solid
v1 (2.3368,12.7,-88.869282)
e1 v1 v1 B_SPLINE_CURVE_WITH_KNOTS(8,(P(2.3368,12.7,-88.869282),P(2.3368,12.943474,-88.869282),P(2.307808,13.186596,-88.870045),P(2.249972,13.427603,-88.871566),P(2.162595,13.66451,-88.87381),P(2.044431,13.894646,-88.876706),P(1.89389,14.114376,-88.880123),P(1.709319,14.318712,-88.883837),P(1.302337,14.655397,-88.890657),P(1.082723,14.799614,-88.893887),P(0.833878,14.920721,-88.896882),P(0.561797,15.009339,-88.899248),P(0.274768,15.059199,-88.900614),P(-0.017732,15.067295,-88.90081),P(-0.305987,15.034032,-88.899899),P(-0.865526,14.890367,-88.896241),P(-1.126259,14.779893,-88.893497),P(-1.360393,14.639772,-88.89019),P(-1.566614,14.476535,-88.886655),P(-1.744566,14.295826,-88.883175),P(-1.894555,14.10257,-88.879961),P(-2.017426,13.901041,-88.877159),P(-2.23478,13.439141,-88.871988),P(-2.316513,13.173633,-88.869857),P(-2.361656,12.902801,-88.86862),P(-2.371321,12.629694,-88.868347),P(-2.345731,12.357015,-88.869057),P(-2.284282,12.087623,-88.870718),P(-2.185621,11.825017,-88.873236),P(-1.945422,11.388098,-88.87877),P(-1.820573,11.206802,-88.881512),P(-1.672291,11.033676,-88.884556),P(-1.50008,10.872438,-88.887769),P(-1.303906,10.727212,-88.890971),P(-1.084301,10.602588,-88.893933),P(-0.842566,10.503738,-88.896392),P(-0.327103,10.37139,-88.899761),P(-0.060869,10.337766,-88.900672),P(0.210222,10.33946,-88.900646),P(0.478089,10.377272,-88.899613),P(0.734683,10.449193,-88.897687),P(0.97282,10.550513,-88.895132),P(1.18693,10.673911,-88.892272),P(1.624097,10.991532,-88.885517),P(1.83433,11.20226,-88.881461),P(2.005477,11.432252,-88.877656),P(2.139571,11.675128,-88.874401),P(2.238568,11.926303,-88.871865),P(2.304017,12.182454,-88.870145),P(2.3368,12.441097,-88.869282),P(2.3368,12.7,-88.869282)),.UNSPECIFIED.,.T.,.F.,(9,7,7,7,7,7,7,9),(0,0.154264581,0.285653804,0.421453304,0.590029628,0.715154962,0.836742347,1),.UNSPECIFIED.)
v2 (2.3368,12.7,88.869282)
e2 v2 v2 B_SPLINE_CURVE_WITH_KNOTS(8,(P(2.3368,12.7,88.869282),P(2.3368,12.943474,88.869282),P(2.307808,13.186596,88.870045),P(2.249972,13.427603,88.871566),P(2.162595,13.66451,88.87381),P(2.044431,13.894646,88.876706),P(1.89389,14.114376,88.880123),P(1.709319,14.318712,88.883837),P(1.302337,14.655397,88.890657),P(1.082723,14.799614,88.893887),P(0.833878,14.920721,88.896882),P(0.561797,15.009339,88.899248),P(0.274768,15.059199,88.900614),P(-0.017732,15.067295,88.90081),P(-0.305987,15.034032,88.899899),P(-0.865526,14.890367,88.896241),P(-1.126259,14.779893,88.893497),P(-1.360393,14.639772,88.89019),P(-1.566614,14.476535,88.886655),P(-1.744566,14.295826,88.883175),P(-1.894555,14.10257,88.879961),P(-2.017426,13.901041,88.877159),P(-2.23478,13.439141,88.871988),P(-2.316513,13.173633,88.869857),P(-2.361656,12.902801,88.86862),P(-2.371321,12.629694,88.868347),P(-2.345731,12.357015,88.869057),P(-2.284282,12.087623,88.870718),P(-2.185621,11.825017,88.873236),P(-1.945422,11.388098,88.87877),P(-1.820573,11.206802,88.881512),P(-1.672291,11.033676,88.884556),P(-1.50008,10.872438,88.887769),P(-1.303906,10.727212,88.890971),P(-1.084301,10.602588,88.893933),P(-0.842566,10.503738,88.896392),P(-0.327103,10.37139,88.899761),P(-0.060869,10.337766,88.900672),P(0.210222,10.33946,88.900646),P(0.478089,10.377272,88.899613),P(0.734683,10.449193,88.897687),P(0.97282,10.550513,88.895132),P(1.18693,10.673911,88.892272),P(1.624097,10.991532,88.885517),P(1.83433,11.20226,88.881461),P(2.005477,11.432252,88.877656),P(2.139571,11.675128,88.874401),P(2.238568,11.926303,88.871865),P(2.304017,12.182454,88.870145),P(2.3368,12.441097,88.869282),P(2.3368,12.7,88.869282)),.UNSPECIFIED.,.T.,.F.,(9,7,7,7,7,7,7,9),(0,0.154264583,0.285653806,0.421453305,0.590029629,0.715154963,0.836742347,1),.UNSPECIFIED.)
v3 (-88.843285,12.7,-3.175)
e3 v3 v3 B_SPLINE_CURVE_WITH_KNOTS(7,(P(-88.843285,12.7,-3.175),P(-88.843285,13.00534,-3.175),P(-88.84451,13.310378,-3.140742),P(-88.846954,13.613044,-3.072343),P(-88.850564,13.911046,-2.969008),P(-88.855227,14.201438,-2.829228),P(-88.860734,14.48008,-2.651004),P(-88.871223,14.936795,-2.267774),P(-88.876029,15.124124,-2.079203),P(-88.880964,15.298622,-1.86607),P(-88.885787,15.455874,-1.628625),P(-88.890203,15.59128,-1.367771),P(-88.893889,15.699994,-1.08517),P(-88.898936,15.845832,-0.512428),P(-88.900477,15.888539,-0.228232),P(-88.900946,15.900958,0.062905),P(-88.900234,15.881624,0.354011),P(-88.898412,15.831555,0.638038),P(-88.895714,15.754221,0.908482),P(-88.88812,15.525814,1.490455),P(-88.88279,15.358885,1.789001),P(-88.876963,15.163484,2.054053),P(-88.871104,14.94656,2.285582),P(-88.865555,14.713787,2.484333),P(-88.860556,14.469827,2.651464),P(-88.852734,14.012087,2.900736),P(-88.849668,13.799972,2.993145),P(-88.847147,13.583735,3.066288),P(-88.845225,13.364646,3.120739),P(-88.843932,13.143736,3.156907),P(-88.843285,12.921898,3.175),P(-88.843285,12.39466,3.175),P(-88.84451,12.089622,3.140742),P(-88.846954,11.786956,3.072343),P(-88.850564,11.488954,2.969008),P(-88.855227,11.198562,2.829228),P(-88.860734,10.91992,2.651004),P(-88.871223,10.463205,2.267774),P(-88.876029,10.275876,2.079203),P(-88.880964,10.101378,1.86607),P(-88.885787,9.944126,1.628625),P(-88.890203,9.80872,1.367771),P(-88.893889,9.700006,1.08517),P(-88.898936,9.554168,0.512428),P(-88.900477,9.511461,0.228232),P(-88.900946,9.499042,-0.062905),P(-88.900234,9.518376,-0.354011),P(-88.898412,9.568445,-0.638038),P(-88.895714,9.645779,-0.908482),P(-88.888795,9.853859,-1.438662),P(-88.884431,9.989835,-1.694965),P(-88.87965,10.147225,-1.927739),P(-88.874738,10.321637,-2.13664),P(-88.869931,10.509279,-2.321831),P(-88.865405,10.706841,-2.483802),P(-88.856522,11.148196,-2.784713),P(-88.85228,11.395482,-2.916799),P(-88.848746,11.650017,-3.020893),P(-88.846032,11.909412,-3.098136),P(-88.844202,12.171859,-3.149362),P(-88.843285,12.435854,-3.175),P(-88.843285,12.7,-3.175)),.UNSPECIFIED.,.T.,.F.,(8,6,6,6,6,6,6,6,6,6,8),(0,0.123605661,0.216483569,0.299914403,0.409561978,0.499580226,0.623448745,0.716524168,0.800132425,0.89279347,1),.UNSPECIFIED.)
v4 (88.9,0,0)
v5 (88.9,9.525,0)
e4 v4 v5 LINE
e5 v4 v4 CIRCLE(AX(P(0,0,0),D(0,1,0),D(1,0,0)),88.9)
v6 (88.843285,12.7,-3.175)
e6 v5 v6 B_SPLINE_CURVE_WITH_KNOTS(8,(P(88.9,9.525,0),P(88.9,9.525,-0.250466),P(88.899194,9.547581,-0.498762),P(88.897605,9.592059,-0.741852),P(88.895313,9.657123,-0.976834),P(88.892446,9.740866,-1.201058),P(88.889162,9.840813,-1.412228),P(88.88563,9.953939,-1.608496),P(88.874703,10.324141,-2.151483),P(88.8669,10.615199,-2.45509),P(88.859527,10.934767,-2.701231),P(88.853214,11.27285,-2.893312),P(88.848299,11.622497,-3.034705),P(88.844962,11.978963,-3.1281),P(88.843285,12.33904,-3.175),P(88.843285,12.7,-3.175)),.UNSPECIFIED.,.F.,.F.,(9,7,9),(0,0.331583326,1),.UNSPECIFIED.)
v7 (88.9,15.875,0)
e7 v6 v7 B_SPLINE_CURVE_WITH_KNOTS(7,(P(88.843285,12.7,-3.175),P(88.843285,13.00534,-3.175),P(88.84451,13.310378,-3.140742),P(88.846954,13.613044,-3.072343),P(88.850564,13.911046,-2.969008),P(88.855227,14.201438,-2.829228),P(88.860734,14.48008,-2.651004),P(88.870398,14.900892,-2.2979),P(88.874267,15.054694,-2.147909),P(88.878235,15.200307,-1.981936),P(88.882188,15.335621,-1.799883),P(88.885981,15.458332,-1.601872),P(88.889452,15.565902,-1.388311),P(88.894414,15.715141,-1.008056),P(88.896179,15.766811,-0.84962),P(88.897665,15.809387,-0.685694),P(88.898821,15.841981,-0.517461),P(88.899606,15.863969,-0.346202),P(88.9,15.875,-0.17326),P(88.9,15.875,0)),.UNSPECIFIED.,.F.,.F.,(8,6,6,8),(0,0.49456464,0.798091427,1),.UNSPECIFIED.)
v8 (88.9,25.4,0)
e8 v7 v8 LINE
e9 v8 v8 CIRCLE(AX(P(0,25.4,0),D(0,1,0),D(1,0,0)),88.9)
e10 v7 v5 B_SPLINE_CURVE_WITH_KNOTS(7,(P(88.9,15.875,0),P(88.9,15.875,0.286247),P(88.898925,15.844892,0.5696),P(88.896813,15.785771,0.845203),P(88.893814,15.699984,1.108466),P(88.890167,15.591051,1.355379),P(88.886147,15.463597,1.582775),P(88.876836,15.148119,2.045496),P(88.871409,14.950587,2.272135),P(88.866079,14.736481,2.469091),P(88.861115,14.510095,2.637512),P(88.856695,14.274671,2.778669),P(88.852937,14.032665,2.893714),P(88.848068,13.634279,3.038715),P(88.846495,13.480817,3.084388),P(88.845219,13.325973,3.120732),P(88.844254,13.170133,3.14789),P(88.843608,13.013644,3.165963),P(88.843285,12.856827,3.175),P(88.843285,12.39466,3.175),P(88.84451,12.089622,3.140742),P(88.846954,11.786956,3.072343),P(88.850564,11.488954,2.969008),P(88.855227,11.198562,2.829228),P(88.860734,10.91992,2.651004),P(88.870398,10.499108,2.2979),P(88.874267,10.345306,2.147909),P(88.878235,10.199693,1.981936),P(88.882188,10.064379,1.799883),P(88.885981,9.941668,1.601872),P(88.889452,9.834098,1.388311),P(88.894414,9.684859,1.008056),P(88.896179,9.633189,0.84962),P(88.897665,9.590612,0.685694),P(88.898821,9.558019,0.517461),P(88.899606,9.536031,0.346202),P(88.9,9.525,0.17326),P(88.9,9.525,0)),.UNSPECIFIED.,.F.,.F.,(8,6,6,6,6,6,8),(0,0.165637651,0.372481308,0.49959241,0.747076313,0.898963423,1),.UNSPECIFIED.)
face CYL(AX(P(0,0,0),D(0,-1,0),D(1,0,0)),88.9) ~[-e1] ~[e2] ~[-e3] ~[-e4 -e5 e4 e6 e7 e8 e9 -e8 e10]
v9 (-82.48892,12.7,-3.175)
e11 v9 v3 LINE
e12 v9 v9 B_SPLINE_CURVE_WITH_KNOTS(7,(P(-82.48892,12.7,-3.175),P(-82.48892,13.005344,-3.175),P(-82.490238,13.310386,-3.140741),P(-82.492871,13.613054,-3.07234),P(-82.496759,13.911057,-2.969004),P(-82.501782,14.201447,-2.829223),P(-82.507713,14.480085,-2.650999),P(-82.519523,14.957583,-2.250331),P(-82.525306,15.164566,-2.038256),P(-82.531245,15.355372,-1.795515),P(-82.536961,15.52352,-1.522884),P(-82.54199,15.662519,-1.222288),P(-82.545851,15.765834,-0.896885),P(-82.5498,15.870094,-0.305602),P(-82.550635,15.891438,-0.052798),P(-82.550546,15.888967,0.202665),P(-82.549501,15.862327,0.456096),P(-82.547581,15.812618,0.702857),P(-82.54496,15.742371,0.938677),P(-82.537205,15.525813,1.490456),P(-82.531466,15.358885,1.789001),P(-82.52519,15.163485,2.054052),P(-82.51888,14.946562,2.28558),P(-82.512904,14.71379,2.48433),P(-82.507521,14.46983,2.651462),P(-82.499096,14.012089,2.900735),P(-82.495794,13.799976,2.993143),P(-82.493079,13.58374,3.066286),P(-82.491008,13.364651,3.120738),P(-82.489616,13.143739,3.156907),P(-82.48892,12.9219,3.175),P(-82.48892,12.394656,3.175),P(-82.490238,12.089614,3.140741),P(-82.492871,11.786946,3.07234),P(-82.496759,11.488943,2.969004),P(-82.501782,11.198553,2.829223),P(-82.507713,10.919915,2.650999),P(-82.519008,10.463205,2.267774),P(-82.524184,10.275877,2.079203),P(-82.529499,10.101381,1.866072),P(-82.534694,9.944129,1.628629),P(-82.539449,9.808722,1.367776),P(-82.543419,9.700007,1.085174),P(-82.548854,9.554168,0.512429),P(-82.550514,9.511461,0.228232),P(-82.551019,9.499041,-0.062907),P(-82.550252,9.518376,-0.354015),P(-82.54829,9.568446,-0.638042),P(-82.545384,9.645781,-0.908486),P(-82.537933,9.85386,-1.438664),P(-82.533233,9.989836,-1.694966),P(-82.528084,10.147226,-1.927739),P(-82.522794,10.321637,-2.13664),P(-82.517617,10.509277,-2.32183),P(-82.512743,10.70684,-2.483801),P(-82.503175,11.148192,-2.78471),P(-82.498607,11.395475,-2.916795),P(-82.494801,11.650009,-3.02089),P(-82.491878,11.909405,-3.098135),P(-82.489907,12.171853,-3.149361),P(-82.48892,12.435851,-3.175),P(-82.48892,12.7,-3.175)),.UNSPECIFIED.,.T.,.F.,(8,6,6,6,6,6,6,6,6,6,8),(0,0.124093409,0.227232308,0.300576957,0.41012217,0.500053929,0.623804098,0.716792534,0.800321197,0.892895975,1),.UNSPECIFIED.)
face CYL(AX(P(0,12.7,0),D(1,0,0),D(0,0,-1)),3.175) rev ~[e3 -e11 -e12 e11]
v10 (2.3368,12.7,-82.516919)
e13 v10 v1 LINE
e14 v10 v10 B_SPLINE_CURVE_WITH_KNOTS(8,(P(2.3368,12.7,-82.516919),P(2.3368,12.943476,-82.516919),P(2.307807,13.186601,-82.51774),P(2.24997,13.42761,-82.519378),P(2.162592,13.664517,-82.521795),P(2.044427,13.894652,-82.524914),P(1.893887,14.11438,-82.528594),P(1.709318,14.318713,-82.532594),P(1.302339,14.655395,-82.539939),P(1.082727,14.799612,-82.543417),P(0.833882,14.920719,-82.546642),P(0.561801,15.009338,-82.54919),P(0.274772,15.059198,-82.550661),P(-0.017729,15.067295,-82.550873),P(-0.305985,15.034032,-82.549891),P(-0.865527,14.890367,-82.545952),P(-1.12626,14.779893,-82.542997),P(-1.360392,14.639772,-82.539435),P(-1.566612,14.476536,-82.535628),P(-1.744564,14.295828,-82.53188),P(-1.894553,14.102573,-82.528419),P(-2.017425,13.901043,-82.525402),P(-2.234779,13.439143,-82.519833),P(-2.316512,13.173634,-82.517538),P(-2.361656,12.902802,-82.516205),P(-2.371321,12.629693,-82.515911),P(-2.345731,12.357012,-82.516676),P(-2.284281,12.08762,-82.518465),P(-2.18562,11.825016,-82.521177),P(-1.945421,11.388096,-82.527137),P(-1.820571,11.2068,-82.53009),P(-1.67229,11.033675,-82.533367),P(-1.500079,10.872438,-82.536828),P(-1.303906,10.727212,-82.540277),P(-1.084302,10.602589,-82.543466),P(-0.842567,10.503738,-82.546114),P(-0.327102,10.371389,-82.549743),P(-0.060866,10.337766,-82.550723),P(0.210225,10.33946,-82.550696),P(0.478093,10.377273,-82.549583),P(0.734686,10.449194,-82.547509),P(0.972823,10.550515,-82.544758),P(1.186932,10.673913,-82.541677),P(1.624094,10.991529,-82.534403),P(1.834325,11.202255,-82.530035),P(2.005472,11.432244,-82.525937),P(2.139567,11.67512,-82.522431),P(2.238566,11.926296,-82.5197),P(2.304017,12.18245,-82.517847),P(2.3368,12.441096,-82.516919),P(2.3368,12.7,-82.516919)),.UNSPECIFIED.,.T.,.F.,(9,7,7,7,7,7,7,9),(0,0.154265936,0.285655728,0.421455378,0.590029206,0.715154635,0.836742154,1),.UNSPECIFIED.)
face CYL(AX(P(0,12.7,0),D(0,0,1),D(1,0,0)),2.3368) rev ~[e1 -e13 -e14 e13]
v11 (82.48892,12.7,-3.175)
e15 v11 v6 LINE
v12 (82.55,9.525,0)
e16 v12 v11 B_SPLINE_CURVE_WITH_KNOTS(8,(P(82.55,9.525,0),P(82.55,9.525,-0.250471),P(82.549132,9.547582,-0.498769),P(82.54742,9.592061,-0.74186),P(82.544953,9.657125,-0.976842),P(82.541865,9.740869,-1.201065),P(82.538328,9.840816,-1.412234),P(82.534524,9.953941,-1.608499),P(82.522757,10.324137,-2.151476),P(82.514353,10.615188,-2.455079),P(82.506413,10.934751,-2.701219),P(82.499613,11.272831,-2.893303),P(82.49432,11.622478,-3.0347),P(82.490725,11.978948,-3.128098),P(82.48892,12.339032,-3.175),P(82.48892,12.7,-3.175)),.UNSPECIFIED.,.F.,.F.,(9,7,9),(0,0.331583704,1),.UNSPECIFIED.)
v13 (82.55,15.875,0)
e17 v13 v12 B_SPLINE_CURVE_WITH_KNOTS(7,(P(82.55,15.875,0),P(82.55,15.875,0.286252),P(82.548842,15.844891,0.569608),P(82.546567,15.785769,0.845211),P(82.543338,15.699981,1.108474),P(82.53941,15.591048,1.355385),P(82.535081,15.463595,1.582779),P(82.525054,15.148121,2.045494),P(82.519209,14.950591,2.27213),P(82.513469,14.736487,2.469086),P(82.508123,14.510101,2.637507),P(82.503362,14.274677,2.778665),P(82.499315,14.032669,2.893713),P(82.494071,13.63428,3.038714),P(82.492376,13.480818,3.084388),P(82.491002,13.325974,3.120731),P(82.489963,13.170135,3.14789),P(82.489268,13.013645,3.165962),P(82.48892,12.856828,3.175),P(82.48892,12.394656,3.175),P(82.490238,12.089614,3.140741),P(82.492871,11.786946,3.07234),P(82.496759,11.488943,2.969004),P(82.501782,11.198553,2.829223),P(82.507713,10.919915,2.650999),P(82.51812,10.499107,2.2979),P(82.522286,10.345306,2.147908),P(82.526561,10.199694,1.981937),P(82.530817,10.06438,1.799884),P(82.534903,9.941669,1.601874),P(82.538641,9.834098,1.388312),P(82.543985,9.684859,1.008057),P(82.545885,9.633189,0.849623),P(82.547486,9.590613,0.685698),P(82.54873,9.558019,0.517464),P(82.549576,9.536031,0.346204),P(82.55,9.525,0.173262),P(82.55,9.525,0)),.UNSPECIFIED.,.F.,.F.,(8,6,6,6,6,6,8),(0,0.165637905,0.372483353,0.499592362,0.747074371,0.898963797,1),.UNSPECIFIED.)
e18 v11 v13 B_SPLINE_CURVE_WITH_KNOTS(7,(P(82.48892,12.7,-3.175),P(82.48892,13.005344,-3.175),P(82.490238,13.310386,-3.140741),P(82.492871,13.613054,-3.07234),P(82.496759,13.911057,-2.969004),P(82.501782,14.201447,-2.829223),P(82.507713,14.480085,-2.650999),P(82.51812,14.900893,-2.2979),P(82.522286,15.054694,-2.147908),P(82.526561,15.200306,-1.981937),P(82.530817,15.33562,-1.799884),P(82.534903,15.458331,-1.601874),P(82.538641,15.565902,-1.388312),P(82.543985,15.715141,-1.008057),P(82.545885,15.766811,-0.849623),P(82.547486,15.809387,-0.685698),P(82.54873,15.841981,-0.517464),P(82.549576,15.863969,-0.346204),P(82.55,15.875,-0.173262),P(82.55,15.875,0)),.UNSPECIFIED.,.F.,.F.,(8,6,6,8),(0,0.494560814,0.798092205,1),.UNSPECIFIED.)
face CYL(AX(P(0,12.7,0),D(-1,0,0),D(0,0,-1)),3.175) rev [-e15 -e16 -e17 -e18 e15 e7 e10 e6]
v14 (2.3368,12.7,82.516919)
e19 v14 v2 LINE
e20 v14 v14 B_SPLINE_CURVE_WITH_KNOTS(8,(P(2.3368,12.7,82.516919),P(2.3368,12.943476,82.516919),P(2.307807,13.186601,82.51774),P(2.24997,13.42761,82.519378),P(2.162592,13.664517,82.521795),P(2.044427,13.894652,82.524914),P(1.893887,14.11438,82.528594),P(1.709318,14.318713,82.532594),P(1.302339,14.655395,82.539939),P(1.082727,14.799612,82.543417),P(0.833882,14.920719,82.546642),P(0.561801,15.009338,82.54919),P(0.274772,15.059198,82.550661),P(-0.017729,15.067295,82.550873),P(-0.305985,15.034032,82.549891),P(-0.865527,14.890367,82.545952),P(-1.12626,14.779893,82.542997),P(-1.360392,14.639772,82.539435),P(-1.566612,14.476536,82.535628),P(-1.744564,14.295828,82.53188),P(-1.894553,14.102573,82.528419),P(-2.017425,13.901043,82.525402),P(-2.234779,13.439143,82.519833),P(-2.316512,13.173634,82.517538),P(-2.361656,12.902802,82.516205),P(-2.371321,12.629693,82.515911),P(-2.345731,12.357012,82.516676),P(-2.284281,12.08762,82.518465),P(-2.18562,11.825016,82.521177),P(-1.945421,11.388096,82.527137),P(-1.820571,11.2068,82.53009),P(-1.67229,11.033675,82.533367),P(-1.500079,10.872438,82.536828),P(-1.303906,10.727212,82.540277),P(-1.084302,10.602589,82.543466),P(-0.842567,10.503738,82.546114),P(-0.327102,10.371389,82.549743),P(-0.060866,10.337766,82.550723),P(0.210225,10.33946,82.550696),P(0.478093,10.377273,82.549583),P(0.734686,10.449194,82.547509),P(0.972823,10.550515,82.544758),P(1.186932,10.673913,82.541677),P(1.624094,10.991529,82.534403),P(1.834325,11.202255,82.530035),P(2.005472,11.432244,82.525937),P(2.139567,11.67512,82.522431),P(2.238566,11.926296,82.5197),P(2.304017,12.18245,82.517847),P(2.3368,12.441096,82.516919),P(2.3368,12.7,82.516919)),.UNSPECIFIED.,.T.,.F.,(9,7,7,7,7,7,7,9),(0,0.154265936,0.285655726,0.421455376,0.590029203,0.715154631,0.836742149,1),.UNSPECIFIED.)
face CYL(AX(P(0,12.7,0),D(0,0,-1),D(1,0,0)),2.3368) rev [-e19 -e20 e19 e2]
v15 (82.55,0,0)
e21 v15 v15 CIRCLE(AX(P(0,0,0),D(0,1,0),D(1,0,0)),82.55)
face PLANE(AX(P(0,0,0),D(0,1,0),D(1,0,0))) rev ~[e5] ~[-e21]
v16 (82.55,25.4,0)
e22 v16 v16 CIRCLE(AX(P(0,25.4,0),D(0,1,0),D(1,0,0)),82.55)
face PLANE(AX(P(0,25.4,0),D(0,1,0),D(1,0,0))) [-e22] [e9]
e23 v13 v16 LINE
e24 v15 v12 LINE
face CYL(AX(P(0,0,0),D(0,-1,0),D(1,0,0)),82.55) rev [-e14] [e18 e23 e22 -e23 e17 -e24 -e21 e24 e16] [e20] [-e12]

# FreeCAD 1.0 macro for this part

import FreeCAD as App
import Part
import Sketcher
from FreeCAD import Vector
Q = App.Units.Quantity

doc = App.newDocument("Part")
params = doc.addObject("Spreadsheet::Sheet", "Params")
for row, (alias, value) in enumerate([
    ("sketch1_diameter", "7 in"),
    ("sketch1_diameter2", "6.5 in"),
    ("pad1_length", "1 in"),
    ("sketch2_diameter", "0.25 in"),
    ("sketch3_diameter", "0.184 in"),
], start=1):
    params.set(f"A{row}", alias)
    params.set(f"B{row}", "=" + value)
    params.setAlias(f"B{row}", alias)

body = doc.addObject("PartDesign::Body", "Body")

sketch1 = body.newObject("Sketcher::SketchObject", "Sketch")
sketch1.AttachmentSupport = (doc.getObject("XZ_Plane"), [""])
sketch1.MapMode = "FlatFace"
sketch1.addGeometry([
    Part.Circle(Vector(0, 0, 0), Vector(0, 0, 1), 89),
    Part.Circle(Vector(0, 0, 0), Vector(0, 0, 1), 83),
], False)
sketch1.addConstraint([
    Sketcher.Constraint("Coincident", 0, 3, -1, 1),
    Sketcher.Constraint("Coincident", 1, 3, -1, 1),
    Sketcher.Constraint("Diameter", 0, Q("7 in")),
    Sketcher.Constraint("Diameter", 1, Q("6.5 in")),
])
sketch1.setExpression("Constraints[2]", "Params.sketch1_diameter")
sketch1.setExpression("Constraints[3]", "Params.sketch1_diameter2")
pad1 = body.newObject("PartDesign::Pad", "Pad")
pad1.Profile = sketch1
pad1.setExpression("Length", "Params.pad1_length")
pad1.Reversed = True

sketch2 = body.newObject("Sketcher::SketchObject", "Sketch001")
sketch2.AttachmentSupport = (doc.getObject("YZ_Plane"), [""])
sketch2.MapMode = "FlatFace"
sketch2.addGeometry(Part.Circle(Vector(12.7, 0, 0), Vector(0, 0, 1), 3.2), False)
sketch2.addConstraint([
    Sketcher.Constraint("PointOnObject", 0, 3, -1),
    Sketcher.Constraint("Diameter", 0, Q("0.25 in")),
    Sketcher.Constraint("DistanceX", -1, 1, 0, 3, Q("0.5 in")),
])
sketch2.setExpression("Constraints[1]", "Params.sketch2_diameter")
pocket1 = body.newObject("PartDesign::Pocket", "Pocket")
pocket1.Profile = sketch2
pocket1.Type = "ThroughAll"
pocket1.Midplane = True

sketch3 = body.newObject("Sketcher::SketchObject", "Sketch002")
sketch3.AttachmentSupport = (doc.getObject("XY_Plane"), [""])
sketch3.MapMode = "FlatFace"
sketch3.addGeometry(Part.Circle(Vector(0, 12.7, 0), Vector(0, 0, 1), 2.3), False)
sketch3.addConstraint([
    Sketcher.Constraint("PointOnObject", 0, 3, -2),
    Sketcher.Constraint("Diameter", 0, Q("0.184 in")),
    Sketcher.Constraint("DistanceY", -1, 1, 0, 3, Q("0.5 in")),
])
sketch3.setExpression("Constraints[1]", "Params.sketch3_diameter")
pocket2 = body.newObject("PartDesign::Pocket", "Pocket001")
pocket2.Profile = sketch3
pocket2.Type = "ThroughAll"
pocket2.Midplane = True

doc.recompute()
